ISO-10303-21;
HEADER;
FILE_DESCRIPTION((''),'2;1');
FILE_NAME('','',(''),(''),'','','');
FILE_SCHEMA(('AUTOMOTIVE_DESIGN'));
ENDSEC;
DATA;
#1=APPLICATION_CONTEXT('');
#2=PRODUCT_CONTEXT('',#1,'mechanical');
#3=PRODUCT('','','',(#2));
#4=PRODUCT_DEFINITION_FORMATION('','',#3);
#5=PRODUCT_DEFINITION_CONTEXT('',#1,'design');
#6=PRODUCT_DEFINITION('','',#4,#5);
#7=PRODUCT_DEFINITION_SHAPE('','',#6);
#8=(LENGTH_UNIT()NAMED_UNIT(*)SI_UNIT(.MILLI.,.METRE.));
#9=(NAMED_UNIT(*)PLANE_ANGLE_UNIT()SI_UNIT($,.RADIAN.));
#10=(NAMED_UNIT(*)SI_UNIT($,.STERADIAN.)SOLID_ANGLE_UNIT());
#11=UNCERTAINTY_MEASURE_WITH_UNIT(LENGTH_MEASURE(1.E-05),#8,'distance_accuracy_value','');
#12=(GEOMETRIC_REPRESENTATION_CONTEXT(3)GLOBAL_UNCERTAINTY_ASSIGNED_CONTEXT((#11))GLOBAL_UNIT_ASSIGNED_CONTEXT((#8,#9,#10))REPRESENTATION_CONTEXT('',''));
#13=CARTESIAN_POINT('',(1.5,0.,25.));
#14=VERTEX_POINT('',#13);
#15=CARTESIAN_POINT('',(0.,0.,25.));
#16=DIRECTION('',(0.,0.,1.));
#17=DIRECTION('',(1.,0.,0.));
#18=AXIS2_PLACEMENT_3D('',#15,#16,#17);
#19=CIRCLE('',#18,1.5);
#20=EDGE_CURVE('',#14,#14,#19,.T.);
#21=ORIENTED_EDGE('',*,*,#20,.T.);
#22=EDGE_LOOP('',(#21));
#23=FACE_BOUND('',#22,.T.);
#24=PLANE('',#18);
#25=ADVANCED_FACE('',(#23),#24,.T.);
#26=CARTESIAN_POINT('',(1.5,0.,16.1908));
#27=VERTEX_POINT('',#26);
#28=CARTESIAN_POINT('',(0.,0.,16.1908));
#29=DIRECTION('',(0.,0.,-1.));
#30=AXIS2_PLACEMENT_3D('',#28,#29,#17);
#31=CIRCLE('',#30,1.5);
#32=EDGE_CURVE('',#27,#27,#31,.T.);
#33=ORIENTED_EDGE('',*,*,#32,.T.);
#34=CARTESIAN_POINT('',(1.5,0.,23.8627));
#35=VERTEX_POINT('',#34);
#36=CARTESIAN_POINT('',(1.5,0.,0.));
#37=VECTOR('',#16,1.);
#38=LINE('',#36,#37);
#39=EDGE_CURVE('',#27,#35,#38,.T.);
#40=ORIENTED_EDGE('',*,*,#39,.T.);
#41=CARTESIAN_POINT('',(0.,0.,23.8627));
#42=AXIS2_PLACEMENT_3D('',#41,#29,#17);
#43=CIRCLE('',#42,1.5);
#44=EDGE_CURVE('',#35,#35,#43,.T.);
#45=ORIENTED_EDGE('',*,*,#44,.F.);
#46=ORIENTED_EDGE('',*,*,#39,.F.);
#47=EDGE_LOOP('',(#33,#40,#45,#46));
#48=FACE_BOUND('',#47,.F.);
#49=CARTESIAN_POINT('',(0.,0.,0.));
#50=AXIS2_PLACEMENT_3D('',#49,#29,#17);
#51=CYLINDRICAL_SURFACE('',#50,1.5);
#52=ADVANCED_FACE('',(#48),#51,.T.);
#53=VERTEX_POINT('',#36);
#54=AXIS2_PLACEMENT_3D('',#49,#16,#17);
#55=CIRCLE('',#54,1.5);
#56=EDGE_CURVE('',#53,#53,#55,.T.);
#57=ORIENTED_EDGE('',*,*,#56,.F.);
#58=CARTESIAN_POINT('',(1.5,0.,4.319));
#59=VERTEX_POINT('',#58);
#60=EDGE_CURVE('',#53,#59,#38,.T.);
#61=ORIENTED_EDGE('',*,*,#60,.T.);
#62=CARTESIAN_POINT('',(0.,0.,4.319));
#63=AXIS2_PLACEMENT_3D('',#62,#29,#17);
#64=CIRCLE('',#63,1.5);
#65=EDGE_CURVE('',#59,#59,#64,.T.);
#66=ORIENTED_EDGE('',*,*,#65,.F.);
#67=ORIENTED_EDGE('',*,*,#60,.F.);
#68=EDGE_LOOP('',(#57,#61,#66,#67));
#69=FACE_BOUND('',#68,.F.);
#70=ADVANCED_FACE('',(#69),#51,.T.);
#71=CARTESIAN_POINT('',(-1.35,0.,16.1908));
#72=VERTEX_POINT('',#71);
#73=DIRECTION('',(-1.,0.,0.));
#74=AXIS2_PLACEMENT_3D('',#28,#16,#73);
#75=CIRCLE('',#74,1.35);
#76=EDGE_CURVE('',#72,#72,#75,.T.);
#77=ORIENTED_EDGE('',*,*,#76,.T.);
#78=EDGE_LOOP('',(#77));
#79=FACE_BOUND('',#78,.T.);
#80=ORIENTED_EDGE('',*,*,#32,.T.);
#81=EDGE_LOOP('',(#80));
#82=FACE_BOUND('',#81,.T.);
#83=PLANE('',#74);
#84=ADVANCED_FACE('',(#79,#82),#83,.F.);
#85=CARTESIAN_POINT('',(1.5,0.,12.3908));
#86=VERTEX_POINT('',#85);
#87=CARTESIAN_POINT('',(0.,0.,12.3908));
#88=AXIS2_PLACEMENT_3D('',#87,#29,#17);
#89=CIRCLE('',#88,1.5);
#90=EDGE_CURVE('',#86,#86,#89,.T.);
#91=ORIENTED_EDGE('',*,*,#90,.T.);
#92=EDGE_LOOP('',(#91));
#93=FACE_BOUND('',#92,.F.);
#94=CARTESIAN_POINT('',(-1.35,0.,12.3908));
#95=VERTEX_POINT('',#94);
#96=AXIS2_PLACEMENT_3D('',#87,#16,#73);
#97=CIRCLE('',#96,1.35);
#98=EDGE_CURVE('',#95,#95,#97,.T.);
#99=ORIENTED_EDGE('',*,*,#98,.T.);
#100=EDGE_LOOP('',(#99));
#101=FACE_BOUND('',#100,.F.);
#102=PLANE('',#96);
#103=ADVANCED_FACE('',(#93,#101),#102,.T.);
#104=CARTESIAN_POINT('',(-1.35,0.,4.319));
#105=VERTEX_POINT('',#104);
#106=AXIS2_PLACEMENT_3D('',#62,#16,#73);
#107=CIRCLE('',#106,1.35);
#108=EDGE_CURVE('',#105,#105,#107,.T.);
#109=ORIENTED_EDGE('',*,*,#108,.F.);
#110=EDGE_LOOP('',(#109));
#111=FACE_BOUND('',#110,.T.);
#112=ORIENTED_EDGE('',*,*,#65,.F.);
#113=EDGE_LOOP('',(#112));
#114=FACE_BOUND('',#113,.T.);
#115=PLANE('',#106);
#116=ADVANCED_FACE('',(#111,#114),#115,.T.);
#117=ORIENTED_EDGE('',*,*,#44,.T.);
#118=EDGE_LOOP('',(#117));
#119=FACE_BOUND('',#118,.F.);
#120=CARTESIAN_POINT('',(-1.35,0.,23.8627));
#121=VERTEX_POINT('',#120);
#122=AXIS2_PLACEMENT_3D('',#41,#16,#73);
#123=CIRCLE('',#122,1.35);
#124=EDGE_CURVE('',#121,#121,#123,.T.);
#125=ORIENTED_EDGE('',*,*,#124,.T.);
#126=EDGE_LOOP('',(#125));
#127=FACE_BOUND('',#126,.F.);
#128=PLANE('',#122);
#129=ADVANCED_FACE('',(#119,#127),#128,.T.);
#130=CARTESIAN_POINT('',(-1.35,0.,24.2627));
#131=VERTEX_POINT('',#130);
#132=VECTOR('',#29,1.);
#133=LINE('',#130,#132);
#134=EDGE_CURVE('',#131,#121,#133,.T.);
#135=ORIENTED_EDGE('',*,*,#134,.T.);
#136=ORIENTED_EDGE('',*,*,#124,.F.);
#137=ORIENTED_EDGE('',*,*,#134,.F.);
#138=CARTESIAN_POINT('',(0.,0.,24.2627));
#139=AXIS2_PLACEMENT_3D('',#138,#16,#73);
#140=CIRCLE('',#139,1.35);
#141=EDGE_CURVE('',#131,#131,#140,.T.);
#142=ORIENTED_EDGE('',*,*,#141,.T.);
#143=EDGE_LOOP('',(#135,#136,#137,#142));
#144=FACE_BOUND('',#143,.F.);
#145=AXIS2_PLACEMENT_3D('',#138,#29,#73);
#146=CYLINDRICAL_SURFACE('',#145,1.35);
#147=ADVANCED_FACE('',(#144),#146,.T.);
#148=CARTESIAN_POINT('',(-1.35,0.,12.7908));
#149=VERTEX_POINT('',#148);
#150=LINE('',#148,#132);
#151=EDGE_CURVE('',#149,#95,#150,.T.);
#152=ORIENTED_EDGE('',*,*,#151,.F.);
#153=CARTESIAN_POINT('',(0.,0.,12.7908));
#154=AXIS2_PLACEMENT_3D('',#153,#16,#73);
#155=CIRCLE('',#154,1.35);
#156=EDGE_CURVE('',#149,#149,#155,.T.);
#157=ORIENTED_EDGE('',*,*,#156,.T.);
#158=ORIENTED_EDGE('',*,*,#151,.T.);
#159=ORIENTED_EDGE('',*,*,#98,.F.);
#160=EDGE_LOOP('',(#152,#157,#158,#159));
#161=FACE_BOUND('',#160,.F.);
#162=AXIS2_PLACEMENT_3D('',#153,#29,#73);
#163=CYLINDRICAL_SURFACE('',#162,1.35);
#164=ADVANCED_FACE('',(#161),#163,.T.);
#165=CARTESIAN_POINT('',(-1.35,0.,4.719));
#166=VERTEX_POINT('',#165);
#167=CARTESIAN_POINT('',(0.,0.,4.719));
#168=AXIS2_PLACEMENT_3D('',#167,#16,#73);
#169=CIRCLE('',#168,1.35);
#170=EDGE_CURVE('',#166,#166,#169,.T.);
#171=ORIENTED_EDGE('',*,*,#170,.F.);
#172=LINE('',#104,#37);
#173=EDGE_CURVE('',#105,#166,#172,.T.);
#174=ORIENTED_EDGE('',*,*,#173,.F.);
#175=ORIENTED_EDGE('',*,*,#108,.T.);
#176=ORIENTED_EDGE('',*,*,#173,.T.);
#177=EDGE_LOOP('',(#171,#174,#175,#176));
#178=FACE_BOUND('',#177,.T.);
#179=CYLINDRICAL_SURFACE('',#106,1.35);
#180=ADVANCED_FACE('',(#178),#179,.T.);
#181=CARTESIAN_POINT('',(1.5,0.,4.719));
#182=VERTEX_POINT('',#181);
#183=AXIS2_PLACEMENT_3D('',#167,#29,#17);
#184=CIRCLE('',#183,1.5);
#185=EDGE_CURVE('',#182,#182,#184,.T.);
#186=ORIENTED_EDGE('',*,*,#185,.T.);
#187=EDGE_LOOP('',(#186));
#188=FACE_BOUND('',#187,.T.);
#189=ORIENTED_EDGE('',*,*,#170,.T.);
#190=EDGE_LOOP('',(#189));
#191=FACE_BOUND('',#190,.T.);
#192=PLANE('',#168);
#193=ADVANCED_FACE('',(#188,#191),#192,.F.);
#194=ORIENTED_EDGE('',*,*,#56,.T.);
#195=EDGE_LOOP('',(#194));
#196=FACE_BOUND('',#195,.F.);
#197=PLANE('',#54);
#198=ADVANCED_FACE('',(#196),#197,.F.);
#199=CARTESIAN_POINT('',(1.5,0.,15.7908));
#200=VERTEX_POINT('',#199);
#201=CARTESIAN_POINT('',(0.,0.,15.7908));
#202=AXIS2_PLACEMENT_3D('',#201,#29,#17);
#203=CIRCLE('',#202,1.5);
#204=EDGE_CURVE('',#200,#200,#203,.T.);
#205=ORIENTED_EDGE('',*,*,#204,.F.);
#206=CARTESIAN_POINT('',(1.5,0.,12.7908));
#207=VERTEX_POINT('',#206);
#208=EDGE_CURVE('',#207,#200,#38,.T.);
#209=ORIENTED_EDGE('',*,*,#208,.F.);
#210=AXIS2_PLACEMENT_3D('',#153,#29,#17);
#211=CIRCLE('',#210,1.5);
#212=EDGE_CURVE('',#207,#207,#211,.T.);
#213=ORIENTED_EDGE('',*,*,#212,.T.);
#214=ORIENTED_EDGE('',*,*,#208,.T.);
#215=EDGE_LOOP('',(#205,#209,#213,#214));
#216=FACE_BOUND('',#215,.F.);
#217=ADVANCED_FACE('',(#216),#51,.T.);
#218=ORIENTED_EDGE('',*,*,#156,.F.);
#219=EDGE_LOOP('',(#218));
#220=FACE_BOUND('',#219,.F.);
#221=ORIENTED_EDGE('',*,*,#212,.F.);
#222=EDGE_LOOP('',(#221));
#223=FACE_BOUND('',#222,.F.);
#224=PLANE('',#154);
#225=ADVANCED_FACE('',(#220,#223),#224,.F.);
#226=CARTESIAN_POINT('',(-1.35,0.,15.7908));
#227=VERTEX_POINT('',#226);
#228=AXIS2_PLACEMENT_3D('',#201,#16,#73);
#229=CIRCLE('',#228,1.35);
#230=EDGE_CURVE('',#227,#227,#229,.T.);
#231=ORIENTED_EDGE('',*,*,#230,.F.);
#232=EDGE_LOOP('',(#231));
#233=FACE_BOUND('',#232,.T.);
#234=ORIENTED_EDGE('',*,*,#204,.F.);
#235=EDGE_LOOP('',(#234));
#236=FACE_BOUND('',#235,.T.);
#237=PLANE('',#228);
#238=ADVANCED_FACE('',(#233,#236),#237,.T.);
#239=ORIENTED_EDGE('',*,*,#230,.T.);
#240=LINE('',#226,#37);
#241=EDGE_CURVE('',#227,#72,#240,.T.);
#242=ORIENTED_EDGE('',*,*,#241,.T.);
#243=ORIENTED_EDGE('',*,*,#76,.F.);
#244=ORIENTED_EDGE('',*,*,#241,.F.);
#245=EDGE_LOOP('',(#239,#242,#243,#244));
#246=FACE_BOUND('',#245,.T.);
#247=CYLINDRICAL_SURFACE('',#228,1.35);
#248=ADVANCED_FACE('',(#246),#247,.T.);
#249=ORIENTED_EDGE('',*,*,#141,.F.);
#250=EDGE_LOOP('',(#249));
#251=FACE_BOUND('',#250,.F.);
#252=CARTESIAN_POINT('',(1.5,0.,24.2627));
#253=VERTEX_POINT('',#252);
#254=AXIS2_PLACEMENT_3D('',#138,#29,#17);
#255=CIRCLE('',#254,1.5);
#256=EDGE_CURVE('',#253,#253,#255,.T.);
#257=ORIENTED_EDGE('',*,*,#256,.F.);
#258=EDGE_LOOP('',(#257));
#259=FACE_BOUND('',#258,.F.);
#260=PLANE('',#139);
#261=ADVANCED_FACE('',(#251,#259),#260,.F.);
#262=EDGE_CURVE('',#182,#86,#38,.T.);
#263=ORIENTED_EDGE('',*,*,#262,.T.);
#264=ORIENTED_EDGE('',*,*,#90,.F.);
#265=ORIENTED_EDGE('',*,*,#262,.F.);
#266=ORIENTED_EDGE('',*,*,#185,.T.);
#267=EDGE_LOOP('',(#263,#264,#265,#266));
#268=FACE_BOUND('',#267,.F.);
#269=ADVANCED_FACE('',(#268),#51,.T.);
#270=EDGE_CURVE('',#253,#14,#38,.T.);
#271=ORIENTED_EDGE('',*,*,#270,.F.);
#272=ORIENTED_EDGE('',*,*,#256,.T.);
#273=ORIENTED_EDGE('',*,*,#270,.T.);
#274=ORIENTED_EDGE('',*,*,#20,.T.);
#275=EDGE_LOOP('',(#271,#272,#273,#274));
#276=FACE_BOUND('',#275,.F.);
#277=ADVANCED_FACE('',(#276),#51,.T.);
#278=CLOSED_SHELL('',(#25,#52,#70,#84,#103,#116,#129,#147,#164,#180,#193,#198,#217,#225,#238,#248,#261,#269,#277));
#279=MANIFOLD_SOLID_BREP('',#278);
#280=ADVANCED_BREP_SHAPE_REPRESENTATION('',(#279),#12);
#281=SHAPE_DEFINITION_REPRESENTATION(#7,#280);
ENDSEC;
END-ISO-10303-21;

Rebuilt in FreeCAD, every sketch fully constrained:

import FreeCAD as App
import Part
import Sketcher
from FreeCAD import Vector

doc = App.newDocument("Part")
params = doc.addObject("Spreadsheet::Sheet", "Params")
for row, (alias, value) in enumerate([
    ("sketch1_diameter", "3 mm"),
    ("pad1_length", "25 mm"),
    ("sketch2_height", "0.4 mm"),
    ("sketch2_width", "0.15 mm"),
    ("groove_angle", "360 deg"),
], start=1):
    params.set(f"A{row}", alias)
    params.set(f"B{row}", "=" + value)
    params.setAlias(f"B{row}", alias)

body = doc.addObject("PartDesign::Body", "Body")

sketch1 = body.newObject("Sketcher::SketchObject", "Sketch")
sketch1.AttachmentSupport = (doc.getObject("XY_Plane"), [""])
sketch1.MapMode = "FlatFace"
sketch1.addGeometry(Part.Circle(Vector(0, 0, 0), Vector(0, 0, 1), 1.5), False)
sketch1.addConstraint([
    Sketcher.Constraint("Coincident", 0, 3, -1, 1),
    Sketcher.Constraint("Diameter", 0, 3.0),
])
sketch1.setExpression("Constraints[1]", "Params.sketch1_diameter")
pad1 = body.newObject("PartDesign::Pad", "Pad")
pad1.Profile = sketch1
pad1.setExpression("Length", "Params.pad1_length")

sketch2 = body.newObject("Sketcher::SketchObject", "Sketch001")
sketch2.AttachmentSupport = (doc.getObject("XZ_Plane"), [""])
sketch2.MapMode = "FlatFace"
sketch2.addGeometry([
    Part.LineSegment(Vector(-1.35, 4.32, 0), Vector(-1.5, 4.32, 0)),
    Part.LineSegment(Vector(-1.5, 4.32, 0), Vector(-1.5, 4.72, 0)),
    Part.LineSegment(Vector(-1.5, 4.72, 0), Vector(-1.35, 4.72, 0)),
    Part.LineSegment(Vector(-1.35, 4.72, 0), Vector(-1.35, 4.32, 0)),
    Part.LineSegment(Vector(-1.35, 23.86, 0), Vector(-1.5, 23.86, 0)),
    Part.LineSegment(Vector(-1.5, 23.86, 0), Vector(-1.5, 24.26, 0)),
    Part.LineSegment(Vector(-1.5, 24.26, 0), Vector(-1.35, 24.26, 0)),
    Part.LineSegment(Vector(-1.35, 24.26, 0), Vector(-1.35, 23.86, 0)),
    Part.LineSegment(Vector(-1.35, 15.79, 0), Vector(-1.5, 15.79, 0)),
    Part.LineSegment(Vector(-1.5, 15.79, 0), Vector(-1.5, 16.19, 0)),
    Part.LineSegment(Vector(-1.5, 16.19, 0), Vector(-1.35, 16.19, 0)),
    Part.LineSegment(Vector(-1.35, 16.19, 0), Vector(-1.35, 15.79, 0)),
    Part.LineSegment(Vector(-1.35, 12.39, 0), Vector(-1.5, 12.39, 0)),
    Part.LineSegment(Vector(-1.5, 12.39, 0), Vector(-1.5, 12.79, 0)),
    Part.LineSegment(Vector(-1.5, 12.79, 0), Vector(-1.35, 12.79, 0)),
    Part.LineSegment(Vector(-1.35, 12.79, 0), Vector(-1.35, 12.39, 0)),
], False)
sketch2.addConstraint([
    Sketcher.Constraint("Coincident", 0, 2, 1, 1),
    Sketcher.Constraint("Coincident", 1, 2, 2, 1),
    Sketcher.Constraint("Coincident", 2, 2, 3, 1),
    Sketcher.Constraint("Coincident", 3, 2, 0, 1),
    Sketcher.Constraint("Coincident", 4, 2, 5, 1),
    Sketcher.Constraint("Coincident", 5, 2, 6, 1),
    Sketcher.Constraint("Coincident", 6, 2, 7, 1),
    Sketcher.Constraint("Coincident", 7, 2, 4, 1),
    Sketcher.Constraint("Coincident", 8, 2, 9, 1),
    Sketcher.Constraint("Coincident", 9, 2, 10, 1),
    Sketcher.Constraint("Coincident", 10, 2, 11, 1),
    Sketcher.Constraint("Coincident", 11, 2, 8, 1),
    Sketcher.Constraint("Coincident", 12, 2, 13, 1),
    Sketcher.Constraint("Coincident", 13, 2, 14, 1),
    Sketcher.Constraint("Coincident", 14, 2, 15, 1),
    Sketcher.Constraint("Coincident", 15, 2, 12, 1),
    Sketcher.Constraint("Horizontal", 0),
    Sketcher.Constraint("Vertical", 1),
    Sketcher.Constraint("Horizontal", 2),
    Sketcher.Constraint("Vertical", 3),
    Sketcher.Constraint("Horizontal", 4),
    Sketcher.Constraint("Vertical", 5),
    Sketcher.Constraint("Horizontal", 6),
    Sketcher.Constraint("Vertical", 7),
    Sketcher.Constraint("Horizontal", 8),
    Sketcher.Constraint("Vertical", 9),
    Sketcher.Constraint("Horizontal", 10),
    Sketcher.Constraint("Vertical", 11),
    Sketcher.Constraint("Horizontal", 12),
    Sketcher.Constraint("Vertical", 13),
    Sketcher.Constraint("Horizontal", 14),
    Sketcher.Constraint("Vertical", 15),
    Sketcher.Constraint("Vertical", 1, 2, 4, 2),
    Sketcher.Constraint("Vertical", 3, 2, 6, 2),
    Sketcher.Constraint("Vertical", 5, 2, 8, 2),
    Sketcher.Constraint("Vertical", 7, 2, 10, 2),
    Sketcher.Constraint("Vertical", 9, 2, 12, 2),
    Sketcher.Constraint("Vertical", 11, 2, 14, 2),
    Sketcher.Constraint("Equal", 3, 5),
    Sketcher.Constraint("Equal", 7, 9),
    Sketcher.Constraint("Equal", 11, 13),
    Sketcher.Constraint("DistanceY", 1, 1, 1, 2, 0.4),
    Sketcher.Constraint("DistanceY", 13, 2, 8, 2, 3.0),
    Sketcher.Constraint("DistanceX", 0, 2, 0, 1, 0.15),
    Sketcher.Constraint("DistanceX", 0, 2, -1, 1, 1.5),
    Sketcher.Constraint("DistanceY", -1, 1, 0, 2, 4.319),
    Sketcher.Constraint("DistanceY", 8, 2, 4, 2, 8.072),
    Sketcher.Constraint("DistanceY", -1, 1, 4, 2, 23.8627),
])
sketch2.setExpression("Constraints[41]", "Params.sketch2_height")
sketch2.setExpression("Constraints[43]", "Params.sketch2_width")
groove = body.newObject("PartDesign::Groove", "Groove")
groove.Profile = sketch2
groove.ReferenceAxis = (sketch2, ["V_Axis"])
groove.setExpression("Angle", "Params.groove_angle")

doc.recompute()
